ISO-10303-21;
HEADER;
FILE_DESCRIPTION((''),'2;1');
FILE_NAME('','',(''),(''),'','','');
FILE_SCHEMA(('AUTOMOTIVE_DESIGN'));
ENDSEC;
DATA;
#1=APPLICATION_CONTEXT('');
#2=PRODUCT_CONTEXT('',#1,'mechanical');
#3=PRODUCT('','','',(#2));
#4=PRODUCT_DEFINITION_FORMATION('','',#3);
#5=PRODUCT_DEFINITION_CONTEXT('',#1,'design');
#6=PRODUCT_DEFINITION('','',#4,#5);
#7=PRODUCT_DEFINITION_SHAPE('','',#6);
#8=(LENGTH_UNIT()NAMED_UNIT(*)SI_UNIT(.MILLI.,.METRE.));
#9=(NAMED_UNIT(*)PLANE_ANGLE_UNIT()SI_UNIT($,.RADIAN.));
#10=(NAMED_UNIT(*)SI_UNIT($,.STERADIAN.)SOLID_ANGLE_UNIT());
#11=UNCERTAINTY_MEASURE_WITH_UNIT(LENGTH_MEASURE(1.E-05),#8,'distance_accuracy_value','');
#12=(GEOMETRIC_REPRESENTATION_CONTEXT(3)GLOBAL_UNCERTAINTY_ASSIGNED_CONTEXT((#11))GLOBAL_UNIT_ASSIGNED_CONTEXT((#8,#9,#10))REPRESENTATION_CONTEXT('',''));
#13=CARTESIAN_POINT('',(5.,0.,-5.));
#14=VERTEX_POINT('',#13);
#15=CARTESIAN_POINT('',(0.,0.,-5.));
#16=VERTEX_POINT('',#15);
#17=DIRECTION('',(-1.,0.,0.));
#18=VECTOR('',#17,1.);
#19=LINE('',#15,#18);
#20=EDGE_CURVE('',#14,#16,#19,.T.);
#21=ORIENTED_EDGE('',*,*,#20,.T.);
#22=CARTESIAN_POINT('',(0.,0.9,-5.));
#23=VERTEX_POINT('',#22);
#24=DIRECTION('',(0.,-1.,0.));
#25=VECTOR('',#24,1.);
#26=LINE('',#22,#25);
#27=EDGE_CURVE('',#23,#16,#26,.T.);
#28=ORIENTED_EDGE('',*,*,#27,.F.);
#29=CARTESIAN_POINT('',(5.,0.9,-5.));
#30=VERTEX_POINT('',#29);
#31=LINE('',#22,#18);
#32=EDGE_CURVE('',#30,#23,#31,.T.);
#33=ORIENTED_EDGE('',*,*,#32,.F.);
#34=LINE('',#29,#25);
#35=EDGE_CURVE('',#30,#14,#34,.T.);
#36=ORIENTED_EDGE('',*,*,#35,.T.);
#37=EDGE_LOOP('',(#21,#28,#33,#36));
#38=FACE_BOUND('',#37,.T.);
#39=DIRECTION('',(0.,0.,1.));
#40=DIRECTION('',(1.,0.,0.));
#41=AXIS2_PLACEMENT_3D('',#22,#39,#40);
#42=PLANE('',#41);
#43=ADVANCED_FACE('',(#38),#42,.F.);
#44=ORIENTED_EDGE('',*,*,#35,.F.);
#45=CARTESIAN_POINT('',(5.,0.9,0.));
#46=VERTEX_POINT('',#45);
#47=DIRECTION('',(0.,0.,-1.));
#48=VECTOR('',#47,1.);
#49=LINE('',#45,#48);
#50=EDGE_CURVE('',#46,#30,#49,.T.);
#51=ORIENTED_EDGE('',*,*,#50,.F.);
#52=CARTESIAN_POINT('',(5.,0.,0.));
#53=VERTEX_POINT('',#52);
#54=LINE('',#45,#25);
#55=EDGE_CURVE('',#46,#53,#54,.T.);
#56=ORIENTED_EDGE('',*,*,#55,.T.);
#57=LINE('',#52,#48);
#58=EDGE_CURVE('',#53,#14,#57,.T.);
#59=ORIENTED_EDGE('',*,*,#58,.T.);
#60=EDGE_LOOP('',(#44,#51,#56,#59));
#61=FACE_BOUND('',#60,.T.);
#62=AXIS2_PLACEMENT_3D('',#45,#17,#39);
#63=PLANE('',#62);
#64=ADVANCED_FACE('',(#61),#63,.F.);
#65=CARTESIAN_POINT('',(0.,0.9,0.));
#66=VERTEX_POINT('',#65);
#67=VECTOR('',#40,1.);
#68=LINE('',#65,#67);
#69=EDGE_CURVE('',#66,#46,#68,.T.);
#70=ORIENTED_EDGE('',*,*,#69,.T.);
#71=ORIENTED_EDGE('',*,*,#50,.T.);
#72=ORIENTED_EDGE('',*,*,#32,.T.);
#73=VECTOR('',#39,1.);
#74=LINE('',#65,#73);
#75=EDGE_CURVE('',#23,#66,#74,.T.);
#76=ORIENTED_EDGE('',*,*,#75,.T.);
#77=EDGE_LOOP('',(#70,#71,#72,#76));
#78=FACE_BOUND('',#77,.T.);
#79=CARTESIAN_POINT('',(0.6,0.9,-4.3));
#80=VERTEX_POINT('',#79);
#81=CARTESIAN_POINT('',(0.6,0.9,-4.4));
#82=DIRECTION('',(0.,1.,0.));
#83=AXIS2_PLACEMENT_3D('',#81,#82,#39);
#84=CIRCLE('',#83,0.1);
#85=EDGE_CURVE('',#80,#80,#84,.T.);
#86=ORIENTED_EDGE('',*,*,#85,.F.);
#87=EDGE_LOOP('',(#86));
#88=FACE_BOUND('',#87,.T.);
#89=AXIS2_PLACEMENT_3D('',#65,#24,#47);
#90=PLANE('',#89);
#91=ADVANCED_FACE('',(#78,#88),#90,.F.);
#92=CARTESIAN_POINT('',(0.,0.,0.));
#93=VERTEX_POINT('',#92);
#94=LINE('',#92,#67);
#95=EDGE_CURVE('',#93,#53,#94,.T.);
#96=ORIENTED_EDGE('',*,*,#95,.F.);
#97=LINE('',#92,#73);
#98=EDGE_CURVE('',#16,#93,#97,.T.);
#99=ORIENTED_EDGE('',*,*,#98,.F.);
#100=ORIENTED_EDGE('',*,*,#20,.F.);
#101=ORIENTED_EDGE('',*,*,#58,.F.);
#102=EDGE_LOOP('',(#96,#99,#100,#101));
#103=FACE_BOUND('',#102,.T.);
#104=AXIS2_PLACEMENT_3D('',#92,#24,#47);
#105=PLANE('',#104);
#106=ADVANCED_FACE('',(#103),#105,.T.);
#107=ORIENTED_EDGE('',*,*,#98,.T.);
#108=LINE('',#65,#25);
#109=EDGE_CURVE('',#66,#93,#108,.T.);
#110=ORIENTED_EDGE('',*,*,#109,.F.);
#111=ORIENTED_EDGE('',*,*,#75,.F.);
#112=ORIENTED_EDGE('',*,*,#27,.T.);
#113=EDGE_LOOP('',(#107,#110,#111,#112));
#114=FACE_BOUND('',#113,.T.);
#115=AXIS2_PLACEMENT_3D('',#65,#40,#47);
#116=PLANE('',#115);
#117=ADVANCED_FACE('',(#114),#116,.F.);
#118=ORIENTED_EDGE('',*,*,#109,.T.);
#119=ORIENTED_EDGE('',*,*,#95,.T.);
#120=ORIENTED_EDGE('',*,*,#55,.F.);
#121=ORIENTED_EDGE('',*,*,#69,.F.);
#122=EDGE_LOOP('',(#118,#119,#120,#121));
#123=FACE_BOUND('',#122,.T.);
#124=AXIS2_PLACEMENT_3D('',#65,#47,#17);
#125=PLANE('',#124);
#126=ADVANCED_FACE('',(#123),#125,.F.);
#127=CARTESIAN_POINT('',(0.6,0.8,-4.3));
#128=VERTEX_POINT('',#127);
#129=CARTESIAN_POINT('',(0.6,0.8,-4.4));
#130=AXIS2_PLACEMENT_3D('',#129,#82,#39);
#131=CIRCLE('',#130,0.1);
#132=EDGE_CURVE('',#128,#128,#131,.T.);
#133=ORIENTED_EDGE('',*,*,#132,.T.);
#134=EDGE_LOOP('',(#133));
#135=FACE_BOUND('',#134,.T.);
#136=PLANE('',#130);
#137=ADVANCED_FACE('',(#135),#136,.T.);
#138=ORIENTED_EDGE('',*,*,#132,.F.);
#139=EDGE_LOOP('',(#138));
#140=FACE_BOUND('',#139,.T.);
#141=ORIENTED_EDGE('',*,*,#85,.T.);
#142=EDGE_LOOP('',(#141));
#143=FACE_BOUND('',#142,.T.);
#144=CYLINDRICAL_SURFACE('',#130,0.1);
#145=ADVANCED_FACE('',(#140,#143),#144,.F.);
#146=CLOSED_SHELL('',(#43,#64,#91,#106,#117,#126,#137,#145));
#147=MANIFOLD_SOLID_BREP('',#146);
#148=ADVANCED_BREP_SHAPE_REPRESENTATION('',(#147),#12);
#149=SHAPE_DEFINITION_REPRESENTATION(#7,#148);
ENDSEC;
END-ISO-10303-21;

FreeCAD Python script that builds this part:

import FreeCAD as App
import Part
import Sketcher
from FreeCAD import Vector
Q = App.Units.Quantity


def add_polygon(sketch, points):
    """Adds a closed chain of lines whose ends are joined by coincident constraints."""
    first, n = sketch.GeometryCount, len(points)
    for a, b in zip(points, points[1:] + points[:1]):
        sketch.addGeometry(Part.LineSegment(App.Vector(*a, 0), App.Vector(*b, 0)), False)
    for i in range(n):
        sketch.addConstraint(Sketcher.Constraint("Coincident", first + i, 2, first + (i + 1) % n, 1))

doc = App.newDocument("Part")
body = doc.addObject("PartDesign::Body", "Body")

# Sketch on XZ plane
sketch1 = body.newObject("Sketcher::SketchObject", "Sketch")
sketch1.AttachmentSupport = (doc.getObject("XZ_Plane"), [""])
sketch1.MapMode = "FlatFace"
add_polygon(sketch1, [(0, -5), (0, 0), (5, 0), (5, -5)])  # lines 0-3
sketch1.addConstraint([
    Sketcher.Constraint("Vertical", 0),
    Sketcher.Constraint("Horizontal", 1),
    Sketcher.Constraint("Vertical", 2),
    Sketcher.Constraint("Horizontal", 3),
    Sketcher.Constraint("Coincident", 0, 2, -1, 1),
    Sketcher.Constraint("Equal", 3, 0),
    Sketcher.Constraint("DistanceX", 1, 1, 1, 2, Q("5 mm")),
])
pad1 = body.newObject("PartDesign::Pad", "Pad")
pad1.Profile = sketch1
pad1.Length = 0.9
pad1.Reversed = True

# Sketch on XZ plane
sketch2 = body.newObject("Sketcher::SketchObject", "Sketch001")
sketch2.AttachmentSupport = (doc.getObject("XZ_Plane"), [""])
sketch2.MapMode = "FlatFace"
sketch2.AttachmentOffset = App.Placement(Vector(0, 0, -0.9), App.Rotation())
sketch2.addGeometry(Part.Circle(Vector(0.6, -4.4, 0), Vector(0, 0, 1), 0.1), False)
sketch2.addConstraint([
    Sketcher.Constraint("Diameter", 0, Q("0.2 mm")),
    Sketcher.Constraint("DistanceX", -1, 1, 0, 3, Q("0.6 mm")),
    Sketcher.Constraint("DistanceY", 0, 3, -1, 1, Q("4.4 mm")),
])
pocket1 = body.newObject("PartDesign::Pocket", "Pocket")
pocket1.Profile = sketch2
pocket1.Length = 0.1
pocket1.Reversed = True

doc.recompute()
